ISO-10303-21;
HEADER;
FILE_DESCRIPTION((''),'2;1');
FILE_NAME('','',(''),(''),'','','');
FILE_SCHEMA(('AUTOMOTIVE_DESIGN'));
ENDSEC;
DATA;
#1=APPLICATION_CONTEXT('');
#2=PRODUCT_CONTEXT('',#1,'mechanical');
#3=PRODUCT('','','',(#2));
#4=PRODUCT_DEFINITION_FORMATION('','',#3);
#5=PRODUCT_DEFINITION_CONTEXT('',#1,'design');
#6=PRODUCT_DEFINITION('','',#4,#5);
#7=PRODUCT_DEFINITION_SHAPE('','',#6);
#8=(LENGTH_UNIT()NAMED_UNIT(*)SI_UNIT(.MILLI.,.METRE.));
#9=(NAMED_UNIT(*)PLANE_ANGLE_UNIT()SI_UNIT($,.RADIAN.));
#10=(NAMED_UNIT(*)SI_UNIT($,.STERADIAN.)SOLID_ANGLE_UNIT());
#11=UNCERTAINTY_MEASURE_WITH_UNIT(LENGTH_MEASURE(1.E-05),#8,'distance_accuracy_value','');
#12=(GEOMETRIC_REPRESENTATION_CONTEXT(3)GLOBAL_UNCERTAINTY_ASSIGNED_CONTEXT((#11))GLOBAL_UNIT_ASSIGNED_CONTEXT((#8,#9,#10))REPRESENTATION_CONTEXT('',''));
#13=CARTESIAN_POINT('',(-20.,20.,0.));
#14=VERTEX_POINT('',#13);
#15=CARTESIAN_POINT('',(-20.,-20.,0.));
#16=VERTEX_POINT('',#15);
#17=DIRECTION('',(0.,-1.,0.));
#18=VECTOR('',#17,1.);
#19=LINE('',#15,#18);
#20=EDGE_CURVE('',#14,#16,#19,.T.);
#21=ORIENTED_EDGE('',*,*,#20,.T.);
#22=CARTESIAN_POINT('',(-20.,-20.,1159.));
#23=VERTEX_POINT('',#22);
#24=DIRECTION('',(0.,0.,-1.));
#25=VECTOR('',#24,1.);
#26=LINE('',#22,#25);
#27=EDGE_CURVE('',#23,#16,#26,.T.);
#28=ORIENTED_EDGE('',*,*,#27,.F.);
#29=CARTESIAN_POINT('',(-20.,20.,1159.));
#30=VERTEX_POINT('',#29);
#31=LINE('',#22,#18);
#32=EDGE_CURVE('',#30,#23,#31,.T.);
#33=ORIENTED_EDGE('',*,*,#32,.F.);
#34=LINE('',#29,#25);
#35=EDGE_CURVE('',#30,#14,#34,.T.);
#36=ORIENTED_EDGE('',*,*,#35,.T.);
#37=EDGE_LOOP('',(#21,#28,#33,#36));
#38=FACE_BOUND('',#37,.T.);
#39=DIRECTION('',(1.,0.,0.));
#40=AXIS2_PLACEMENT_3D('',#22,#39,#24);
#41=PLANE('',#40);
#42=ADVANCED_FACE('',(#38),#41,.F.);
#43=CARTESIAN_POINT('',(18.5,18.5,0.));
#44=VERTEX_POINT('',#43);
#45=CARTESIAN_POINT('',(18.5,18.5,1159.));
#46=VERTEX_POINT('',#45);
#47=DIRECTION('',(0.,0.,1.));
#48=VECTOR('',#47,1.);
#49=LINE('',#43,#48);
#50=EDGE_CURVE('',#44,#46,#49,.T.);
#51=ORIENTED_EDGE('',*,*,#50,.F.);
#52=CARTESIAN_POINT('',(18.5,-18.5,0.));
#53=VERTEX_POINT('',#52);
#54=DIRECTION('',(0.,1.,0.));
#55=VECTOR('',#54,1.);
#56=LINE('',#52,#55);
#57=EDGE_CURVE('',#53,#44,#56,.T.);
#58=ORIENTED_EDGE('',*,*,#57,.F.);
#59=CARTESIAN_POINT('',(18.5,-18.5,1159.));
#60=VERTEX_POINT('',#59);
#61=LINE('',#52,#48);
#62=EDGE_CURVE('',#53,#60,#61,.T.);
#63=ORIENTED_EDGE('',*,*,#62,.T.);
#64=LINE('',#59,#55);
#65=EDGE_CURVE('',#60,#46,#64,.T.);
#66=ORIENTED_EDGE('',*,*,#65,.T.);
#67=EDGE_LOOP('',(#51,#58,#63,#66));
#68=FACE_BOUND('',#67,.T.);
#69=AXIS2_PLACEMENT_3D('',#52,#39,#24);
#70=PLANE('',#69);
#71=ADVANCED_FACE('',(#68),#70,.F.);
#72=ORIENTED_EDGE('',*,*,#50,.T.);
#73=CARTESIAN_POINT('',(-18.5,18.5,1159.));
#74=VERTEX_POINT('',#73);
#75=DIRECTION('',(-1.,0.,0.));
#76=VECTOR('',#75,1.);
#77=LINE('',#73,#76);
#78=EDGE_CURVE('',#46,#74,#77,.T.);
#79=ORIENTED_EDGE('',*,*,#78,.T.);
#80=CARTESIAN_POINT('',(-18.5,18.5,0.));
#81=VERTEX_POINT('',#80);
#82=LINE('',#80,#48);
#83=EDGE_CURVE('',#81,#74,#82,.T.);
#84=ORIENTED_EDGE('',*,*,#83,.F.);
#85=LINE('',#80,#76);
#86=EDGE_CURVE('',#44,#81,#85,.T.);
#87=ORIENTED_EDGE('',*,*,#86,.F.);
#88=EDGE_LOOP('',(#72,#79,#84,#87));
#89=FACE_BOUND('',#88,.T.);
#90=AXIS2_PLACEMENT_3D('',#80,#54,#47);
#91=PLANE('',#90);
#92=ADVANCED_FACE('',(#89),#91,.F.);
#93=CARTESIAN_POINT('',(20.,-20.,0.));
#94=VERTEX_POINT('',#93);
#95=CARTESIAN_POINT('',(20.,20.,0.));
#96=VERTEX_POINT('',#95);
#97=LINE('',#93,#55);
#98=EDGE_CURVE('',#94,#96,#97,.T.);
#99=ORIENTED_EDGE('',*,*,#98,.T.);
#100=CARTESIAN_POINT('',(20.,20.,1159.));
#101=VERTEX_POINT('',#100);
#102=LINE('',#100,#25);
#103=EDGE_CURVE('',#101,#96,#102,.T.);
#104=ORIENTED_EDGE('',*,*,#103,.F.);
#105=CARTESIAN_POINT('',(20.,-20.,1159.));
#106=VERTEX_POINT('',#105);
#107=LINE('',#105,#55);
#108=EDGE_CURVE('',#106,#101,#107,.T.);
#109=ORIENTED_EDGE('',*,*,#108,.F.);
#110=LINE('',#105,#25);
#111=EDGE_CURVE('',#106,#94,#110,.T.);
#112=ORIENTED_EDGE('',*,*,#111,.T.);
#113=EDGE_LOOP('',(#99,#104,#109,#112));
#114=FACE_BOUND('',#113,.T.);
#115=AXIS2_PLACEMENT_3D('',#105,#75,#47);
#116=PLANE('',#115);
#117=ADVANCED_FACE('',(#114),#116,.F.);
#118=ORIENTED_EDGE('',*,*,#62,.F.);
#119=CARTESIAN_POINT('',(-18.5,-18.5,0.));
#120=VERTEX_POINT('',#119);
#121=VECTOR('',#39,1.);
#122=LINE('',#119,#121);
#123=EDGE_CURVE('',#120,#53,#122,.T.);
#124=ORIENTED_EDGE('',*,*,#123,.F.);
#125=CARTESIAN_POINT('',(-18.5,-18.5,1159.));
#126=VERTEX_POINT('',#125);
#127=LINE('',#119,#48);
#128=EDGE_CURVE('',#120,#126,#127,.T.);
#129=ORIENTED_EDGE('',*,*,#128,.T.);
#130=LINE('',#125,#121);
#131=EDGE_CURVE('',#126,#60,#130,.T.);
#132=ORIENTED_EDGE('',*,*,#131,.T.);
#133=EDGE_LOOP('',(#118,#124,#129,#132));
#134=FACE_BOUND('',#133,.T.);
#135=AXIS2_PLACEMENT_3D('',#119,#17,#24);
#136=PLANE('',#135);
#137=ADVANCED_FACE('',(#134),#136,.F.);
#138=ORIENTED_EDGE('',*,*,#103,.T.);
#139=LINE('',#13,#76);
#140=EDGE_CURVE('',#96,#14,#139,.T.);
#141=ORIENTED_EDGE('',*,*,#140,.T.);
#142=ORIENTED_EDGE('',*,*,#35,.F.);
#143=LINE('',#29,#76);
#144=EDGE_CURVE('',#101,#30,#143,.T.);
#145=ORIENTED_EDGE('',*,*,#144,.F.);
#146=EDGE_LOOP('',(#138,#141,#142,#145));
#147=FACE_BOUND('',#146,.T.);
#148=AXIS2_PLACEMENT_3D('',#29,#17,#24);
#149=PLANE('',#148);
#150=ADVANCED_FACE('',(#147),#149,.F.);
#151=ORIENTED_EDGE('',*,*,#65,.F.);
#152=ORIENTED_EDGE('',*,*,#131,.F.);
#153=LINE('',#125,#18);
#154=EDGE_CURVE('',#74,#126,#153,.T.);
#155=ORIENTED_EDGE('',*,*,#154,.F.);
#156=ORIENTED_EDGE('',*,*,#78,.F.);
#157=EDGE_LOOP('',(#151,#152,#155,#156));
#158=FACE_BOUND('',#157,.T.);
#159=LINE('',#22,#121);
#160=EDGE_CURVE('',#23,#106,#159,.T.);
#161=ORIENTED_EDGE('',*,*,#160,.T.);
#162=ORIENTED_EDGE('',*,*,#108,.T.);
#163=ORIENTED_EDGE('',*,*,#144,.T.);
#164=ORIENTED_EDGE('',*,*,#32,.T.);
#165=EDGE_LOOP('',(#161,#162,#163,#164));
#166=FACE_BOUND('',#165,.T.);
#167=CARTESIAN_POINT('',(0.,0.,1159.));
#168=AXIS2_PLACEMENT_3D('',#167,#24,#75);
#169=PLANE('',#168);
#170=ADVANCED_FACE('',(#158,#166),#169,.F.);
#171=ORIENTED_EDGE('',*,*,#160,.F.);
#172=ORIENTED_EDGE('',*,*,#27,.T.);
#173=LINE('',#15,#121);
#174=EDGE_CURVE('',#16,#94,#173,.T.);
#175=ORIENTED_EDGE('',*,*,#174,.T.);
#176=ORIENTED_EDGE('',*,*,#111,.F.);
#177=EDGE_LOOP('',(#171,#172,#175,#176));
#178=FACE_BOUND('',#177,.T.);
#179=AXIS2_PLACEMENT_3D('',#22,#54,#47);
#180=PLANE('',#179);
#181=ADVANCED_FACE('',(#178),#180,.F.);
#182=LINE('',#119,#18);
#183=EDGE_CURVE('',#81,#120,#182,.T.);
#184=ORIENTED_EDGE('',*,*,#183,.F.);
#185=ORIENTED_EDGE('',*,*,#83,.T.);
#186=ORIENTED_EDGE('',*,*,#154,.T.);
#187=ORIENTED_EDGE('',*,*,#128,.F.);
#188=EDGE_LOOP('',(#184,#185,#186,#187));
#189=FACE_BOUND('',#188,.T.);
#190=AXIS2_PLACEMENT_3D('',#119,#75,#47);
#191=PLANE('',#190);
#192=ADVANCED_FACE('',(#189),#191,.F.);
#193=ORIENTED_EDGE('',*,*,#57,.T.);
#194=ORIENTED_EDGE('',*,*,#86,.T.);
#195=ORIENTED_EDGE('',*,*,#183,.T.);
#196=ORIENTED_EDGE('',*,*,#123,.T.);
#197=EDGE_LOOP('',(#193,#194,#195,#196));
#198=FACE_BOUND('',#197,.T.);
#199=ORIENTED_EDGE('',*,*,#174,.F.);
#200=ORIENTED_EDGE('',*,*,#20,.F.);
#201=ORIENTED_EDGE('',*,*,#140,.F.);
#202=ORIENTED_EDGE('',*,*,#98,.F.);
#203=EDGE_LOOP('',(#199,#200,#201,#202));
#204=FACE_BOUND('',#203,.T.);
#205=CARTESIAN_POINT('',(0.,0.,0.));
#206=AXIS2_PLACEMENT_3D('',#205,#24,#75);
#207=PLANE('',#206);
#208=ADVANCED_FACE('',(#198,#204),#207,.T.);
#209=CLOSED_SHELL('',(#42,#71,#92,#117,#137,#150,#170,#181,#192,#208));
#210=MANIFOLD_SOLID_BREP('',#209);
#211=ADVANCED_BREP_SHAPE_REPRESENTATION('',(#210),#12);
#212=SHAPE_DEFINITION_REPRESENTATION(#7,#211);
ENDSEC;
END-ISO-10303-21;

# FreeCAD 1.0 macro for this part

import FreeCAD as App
import Part
import Sketcher

V = App.Vector


def add_polygon(sketch, points):
    """Adds a closed chain of lines whose ends are joined by coincident constraints."""
    first, n = sketch.GeometryCount, len(points)
    for a, b in zip(points, points[1:] + points[:1]):
        sketch.addGeometry(Part.LineSegment(App.Vector(*a, 0), App.Vector(*b, 0)), False)
    for i in range(n):
        sketch.addConstraint(Sketcher.Constraint("Coincident", first + i, 2, first + (i + 1) % n, 1))

doc = App.newDocument("Part")
params = doc.addObject("Spreadsheet::Sheet", "Params")
for row, (alias, value) in enumerate([
    ("sketch1_width", "40 mm"),
    ("pad1_length", "1159 mm"),
    ("sketch2_width", "37 mm"),
], start=1):
    params.set(f"A{row}", alias)
    params.set(f"B{row}", "=" + value)
    params.setAlias(f"B{row}", alias)

body = doc.addObject("PartDesign::Body", "Body")

sketch1 = body.newObject("Sketcher::SketchObject", "Sketch")
sketch1.AttachmentSupport = (doc.getObject("XY_Plane"), [""])
sketch1.MapMode = "FlatFace"
add_polygon(sketch1, [(-20, 20), (-20, -20), (20, -20), (20, 20)])
sketch1.addConstraint(Sketcher.Constraint("Vertical", 0))
sketch1.addConstraint(Sketcher.Constraint("Horizontal", 1))
sketch1.addConstraint(Sketcher.Constraint("Vertical", 2))
sketch1.addConstraint(Sketcher.Constraint("Horizontal", 3))
sketch1.addConstraint(Sketcher.Constraint("Symmetric", 0, 2, 2, 2, -1, 1))
sketch1.addConstraint(Sketcher.Constraint("Equal", 3, 0))
sketch1.addConstraint(Sketcher.Constraint("DistanceX", 1, 1, 1, 2, 40.0))
sketch1.setExpression("Constraints[10]", "Params.sketch1_width")
pad1 = body.newObject("PartDesign::Pad", "Pad")
pad1.Profile = sketch1
pad1.setExpression("Length", "Params.pad1_length")

sketch2 = body.newObject("Sketcher::SketchObject", "Sketch001")
sketch2.AttachmentSupport = (doc.getObject("XY_Plane"), [""])
sketch2.MapMode = "FlatFace"
sketch2.AttachmentOffset = App.Placement(V(0, 0, 1159), App.Rotation())
add_polygon(sketch2, [(-18, 18), (-18, -18), (18, -18), (18, 18)])
sketch2.addConstraint(Sketcher.Constraint("Vertical", 0))
sketch2.addConstraint(Sketcher.Constraint("Horizontal", 1))
sketch2.addConstraint(Sketcher.Constraint("Vertical", 2))
sketch2.addConstraint(Sketcher.Constraint("Horizontal", 3))
sketch2.addConstraint(Sketcher.Constraint("Symmetric", 0, 2, 2, 2, -1, 1))
sketch2.addConstraint(Sketcher.Constraint("Equal", 3, 0))
sketch2.addConstraint(Sketcher.Constraint("DistanceX", 1, 1, 1, 2, 37.0))
sketch2.setExpression("Constraints[10]", "Params.sketch2_width")
pocket1 = body.newObject("PartDesign::Pocket", "Pocket")
pocket1.Profile = sketch2
pocket1.Type = "ThroughAll"

doc.recompute()
